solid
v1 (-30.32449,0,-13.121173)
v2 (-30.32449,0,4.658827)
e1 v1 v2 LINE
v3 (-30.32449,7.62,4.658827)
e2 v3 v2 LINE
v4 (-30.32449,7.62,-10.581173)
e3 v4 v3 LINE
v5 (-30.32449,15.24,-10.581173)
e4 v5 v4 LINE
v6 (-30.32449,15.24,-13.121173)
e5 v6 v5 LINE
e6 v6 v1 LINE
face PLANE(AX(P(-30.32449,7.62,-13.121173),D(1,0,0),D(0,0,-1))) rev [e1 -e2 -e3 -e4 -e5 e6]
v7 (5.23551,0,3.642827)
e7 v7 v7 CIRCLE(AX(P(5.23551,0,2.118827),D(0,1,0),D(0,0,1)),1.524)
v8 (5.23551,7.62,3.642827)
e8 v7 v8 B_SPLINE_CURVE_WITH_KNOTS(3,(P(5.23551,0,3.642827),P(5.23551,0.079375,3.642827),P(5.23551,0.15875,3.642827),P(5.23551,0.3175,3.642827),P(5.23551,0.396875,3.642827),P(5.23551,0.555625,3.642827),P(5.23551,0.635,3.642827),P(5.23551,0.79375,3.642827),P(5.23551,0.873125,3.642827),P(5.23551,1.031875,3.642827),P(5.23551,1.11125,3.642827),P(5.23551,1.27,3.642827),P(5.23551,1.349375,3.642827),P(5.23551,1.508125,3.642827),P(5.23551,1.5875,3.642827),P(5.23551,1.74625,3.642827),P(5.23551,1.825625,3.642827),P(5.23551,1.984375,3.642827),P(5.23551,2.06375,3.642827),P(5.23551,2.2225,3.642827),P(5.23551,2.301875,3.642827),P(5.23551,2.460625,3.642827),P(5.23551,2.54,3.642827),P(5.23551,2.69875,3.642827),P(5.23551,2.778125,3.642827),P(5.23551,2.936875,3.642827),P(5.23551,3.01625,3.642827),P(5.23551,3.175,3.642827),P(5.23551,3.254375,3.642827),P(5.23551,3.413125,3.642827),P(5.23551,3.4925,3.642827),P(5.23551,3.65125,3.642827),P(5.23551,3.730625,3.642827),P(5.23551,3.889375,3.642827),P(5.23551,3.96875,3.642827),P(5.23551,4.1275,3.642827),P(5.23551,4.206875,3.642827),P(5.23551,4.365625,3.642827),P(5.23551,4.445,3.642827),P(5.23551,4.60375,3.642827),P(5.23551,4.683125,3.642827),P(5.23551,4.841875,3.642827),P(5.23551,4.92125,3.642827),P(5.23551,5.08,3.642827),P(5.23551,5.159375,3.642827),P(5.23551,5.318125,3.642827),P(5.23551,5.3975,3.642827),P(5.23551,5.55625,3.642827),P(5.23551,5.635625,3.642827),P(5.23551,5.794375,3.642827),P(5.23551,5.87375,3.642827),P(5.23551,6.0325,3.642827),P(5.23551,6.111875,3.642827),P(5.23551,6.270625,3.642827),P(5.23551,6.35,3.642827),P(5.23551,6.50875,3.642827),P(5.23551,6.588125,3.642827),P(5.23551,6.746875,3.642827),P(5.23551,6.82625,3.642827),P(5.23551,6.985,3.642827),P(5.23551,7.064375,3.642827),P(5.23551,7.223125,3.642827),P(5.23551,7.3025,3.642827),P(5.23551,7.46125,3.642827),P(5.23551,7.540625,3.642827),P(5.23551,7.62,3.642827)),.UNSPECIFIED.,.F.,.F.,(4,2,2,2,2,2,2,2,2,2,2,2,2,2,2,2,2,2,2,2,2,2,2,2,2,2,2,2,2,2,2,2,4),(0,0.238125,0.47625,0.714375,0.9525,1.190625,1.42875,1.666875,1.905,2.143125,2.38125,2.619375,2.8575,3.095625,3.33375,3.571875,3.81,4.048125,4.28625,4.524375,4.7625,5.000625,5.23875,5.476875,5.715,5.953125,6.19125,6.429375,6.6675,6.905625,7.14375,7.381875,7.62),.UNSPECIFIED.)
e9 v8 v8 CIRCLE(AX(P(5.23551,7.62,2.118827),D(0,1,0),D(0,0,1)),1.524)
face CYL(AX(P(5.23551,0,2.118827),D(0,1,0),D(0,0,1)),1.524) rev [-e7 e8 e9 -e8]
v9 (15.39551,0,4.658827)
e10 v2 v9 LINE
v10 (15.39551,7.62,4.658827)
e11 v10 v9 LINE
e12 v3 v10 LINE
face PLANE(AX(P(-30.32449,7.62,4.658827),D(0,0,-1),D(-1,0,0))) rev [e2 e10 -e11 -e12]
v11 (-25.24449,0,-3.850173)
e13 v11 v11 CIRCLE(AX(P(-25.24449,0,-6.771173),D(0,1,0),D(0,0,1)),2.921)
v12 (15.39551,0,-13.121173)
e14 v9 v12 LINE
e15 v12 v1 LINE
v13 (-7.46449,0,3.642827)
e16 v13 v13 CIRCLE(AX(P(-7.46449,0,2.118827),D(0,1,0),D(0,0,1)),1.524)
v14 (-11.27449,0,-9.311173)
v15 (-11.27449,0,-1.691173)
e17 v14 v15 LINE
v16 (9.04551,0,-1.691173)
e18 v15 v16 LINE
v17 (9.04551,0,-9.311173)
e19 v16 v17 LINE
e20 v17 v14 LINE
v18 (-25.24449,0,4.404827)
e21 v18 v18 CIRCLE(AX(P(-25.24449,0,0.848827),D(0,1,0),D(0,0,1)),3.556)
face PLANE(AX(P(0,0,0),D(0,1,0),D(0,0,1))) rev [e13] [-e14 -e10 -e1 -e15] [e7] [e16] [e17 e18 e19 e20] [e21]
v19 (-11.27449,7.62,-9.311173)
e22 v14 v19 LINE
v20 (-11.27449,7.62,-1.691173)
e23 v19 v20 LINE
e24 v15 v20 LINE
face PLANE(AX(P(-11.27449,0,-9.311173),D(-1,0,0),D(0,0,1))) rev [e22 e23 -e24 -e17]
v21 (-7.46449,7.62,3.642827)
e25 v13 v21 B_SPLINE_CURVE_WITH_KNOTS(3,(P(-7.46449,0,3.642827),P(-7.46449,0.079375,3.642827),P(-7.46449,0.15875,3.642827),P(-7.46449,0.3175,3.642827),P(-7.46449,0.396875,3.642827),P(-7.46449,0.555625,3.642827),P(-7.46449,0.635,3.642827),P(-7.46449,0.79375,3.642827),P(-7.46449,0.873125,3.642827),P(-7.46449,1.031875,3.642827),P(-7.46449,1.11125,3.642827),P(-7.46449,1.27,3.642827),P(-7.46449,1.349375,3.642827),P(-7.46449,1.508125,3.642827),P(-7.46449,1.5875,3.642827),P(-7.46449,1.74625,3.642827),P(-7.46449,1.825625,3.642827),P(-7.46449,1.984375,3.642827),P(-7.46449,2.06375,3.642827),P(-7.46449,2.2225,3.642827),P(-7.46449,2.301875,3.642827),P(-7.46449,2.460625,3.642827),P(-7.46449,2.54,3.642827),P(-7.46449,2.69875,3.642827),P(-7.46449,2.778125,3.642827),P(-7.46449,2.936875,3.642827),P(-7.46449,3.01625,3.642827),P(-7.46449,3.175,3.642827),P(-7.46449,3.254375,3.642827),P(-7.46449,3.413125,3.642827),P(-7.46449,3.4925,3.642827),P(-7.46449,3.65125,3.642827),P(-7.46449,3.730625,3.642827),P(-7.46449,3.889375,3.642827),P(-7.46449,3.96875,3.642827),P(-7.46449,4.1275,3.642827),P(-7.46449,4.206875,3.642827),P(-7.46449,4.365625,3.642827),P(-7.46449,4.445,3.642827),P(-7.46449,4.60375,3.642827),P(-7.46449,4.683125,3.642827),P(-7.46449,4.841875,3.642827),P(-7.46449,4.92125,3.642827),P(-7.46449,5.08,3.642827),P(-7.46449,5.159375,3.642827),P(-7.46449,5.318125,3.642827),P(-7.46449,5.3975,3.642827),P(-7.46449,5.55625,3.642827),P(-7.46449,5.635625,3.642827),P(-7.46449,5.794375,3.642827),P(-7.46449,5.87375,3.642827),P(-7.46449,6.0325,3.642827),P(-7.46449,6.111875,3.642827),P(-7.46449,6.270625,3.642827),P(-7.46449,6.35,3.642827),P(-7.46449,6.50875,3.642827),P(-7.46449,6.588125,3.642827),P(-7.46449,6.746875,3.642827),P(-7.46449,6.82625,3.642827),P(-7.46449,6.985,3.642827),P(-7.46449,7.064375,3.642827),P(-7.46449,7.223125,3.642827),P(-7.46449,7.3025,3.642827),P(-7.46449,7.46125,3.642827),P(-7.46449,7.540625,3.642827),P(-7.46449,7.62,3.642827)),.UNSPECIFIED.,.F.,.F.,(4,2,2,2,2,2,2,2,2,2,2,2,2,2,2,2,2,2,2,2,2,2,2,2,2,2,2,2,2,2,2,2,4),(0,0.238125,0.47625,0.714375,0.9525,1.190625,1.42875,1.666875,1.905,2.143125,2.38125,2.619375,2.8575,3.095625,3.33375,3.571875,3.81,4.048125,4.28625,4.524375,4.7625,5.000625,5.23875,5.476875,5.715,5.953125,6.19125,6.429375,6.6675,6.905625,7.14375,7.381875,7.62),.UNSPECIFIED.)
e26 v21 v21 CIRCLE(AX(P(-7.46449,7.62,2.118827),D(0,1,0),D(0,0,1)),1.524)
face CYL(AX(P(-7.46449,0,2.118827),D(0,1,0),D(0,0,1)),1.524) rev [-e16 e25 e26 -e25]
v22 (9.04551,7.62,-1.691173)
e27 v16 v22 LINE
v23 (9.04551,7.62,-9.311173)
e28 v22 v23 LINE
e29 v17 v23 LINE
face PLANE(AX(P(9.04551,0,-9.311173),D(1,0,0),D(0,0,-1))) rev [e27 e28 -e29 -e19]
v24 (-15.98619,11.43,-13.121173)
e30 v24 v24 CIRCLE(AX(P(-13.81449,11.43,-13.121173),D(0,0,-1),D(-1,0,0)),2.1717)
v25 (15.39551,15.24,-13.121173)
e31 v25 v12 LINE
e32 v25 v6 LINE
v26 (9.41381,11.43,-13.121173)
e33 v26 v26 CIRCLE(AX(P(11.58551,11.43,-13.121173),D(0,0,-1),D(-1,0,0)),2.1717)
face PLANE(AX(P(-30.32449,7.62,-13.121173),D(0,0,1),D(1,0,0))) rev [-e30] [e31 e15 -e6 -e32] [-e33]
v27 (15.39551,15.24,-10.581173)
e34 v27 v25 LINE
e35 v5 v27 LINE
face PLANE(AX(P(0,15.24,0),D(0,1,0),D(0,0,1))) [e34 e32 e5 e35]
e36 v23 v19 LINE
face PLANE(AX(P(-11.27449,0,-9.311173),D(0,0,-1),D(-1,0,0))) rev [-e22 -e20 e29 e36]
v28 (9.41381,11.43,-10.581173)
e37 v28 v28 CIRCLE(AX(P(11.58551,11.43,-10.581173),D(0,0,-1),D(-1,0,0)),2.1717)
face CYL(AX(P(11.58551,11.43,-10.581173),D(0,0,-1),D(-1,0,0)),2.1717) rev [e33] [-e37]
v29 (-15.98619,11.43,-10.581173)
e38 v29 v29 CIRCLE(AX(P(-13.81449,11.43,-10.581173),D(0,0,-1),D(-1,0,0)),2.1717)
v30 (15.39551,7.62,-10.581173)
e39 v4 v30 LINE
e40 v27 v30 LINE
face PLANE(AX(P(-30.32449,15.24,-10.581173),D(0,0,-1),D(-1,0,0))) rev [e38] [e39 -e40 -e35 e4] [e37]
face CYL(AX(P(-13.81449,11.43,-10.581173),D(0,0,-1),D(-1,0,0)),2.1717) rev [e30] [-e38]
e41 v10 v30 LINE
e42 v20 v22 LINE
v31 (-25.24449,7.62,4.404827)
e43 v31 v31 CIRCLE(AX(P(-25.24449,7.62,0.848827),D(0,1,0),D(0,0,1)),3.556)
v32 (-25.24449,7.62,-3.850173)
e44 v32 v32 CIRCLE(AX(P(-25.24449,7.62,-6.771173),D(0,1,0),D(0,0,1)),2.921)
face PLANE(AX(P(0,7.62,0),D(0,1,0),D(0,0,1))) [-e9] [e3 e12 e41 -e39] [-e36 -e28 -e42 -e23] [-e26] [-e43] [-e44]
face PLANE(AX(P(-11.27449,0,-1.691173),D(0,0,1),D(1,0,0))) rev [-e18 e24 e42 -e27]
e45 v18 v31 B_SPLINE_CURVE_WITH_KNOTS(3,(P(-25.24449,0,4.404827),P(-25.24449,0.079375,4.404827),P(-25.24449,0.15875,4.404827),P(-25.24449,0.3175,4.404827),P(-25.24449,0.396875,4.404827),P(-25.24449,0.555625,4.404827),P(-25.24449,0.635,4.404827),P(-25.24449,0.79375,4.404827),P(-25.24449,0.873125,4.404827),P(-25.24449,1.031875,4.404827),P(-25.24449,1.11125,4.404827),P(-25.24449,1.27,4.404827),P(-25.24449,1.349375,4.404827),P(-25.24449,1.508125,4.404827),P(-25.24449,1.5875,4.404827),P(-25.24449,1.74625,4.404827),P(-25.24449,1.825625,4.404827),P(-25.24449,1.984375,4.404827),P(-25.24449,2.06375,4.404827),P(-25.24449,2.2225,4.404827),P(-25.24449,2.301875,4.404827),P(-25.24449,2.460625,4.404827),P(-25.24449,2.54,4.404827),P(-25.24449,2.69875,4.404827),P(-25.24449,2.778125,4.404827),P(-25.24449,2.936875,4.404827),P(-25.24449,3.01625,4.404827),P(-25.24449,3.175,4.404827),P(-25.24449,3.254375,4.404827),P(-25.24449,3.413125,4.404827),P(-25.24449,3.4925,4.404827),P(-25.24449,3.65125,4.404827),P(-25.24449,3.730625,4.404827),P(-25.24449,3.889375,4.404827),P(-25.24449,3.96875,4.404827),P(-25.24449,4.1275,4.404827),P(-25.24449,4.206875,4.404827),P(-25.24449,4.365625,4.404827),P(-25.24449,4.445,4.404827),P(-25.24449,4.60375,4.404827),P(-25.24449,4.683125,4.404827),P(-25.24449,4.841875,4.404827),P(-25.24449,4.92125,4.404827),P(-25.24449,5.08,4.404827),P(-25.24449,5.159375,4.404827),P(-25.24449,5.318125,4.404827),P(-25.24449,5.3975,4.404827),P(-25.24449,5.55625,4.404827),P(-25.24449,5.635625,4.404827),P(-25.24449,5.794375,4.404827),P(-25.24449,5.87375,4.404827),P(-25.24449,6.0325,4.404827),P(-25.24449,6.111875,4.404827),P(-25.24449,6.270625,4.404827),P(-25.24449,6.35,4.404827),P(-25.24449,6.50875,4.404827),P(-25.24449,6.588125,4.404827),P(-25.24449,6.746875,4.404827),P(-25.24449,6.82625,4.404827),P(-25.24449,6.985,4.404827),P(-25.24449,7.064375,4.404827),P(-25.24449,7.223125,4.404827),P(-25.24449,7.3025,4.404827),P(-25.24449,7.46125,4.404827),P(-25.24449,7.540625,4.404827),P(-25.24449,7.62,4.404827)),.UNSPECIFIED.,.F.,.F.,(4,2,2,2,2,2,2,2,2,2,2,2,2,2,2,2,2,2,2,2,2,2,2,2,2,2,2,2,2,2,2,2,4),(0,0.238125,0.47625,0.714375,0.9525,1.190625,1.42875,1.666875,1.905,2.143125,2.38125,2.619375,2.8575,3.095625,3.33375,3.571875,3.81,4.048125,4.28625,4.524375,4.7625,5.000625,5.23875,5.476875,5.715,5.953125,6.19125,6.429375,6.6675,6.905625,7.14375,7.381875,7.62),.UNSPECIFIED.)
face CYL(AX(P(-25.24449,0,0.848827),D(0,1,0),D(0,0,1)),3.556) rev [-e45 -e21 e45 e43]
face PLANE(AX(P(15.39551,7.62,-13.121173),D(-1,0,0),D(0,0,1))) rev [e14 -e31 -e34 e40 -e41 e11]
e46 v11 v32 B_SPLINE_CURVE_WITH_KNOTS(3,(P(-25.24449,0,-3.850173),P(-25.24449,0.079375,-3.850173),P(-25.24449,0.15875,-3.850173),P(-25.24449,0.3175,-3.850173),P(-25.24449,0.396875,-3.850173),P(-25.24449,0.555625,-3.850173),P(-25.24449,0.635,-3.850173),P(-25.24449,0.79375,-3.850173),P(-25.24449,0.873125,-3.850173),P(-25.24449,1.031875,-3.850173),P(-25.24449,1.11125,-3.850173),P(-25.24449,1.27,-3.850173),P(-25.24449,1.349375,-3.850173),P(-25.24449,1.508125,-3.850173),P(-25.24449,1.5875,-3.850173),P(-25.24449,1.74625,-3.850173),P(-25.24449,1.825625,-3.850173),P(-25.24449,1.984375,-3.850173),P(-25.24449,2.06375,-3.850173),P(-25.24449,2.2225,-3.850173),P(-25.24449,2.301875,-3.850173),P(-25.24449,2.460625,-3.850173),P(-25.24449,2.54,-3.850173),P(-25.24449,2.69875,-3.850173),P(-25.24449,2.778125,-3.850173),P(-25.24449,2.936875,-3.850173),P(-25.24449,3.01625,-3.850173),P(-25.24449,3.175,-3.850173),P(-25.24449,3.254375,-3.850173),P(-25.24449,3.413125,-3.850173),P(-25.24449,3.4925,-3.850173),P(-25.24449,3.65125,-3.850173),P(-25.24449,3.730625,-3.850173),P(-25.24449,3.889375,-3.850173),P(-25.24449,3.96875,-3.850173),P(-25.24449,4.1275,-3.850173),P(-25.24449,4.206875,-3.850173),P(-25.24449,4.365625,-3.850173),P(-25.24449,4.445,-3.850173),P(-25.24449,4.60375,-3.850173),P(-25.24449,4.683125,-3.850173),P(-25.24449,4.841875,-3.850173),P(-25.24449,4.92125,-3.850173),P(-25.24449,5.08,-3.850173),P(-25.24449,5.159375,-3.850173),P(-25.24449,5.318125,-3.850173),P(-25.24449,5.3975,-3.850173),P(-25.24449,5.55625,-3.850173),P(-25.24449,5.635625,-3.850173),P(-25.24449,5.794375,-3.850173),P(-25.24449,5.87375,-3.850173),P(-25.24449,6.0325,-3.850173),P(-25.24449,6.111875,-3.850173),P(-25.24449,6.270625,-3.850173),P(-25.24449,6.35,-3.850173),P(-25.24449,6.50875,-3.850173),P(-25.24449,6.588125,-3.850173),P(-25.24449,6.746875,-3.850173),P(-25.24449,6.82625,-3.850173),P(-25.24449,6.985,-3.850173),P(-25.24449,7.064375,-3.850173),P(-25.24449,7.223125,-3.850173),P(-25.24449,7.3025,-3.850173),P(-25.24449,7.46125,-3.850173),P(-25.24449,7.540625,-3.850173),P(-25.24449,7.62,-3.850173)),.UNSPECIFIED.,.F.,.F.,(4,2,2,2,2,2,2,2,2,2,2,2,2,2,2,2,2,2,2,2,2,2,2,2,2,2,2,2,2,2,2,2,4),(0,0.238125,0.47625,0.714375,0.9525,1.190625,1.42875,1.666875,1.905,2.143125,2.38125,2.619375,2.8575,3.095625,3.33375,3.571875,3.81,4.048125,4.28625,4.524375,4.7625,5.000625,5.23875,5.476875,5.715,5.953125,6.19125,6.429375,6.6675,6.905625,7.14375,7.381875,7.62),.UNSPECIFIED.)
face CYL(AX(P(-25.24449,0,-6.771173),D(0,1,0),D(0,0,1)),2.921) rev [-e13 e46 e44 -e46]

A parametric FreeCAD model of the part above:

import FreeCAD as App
import Part
import Sketcher
from FreeCAD import Vector
Q = App.Units.Quantity

doc = App.newDocument("Part")
params = doc.addObject("Spreadsheet::Sheet", "Params")
for row, (alias, value) in enumerate([
    ("sketch1_width", "1.8 in"),
    ("sketch1_height", "0.7 in"),
    ("pad1_length", "0.3 in"),
    ("sketch2_width", "1.8 in"),
    ("sketch2_height", "0.1 in"),
    ("pad2_length", "0.3 in"),
    ("sketch3_diameter", "0.171 in"),
    ("pocket1_length", "0.1 in"),
    ("sketch4_diameter", "0.28 in"),
    ("sketch4_diameter2", "0.23 in"),
    ("sketch4_diameter3", "0.12 in"),
    ("sketch4_width", "0.8 in"),
    ("sketch4_height", "0.3 in"),
    ("pocket2_length", "0.3 in"),
], start=1):
    params.set(f"A{row}", alias)
    params.set(f"B{row}", "=" + value)
    params.setAlias(f"B{row}", alias)

body = doc.addObject("PartDesign::Body", "Body")

# Sketch on XZ plane
sketch1 = body.newObject("Sketcher::SketchObject", "Sketch")
sketch1.AttachmentSupport = (doc.getObject("XZ_Plane"), [""])
sketch1.MapMode = "FlatFace"
sketch1.addGeometry([
    Part.LineSegment(Vector(-30, -13, 0), Vector(-30, 5, 0)),
    Part.LineSegment(Vector(-30, 5, 0), Vector(15, 5, 0)),
    Part.LineSegment(Vector(15, 5, 0), Vector(15, -13, 0)),
    Part.LineSegment(Vector(15, -13, 0), Vector(-30, -13, 0)),
], False)
sketch1.addConstraint([
    Sketcher.Constraint("Coincident", 0, 2, 1, 1),
    Sketcher.Constraint("Coincident", 1, 2, 2, 1),
    Sketcher.Constraint("Coincident", 2, 2, 3, 1),
    Sketcher.Constraint("Coincident", 3, 2, 0, 1),
    Sketcher.Constraint("Vertical", 0),
    Sketcher.Constraint("Horizontal", 1),
    Sketcher.Constraint("Vertical", 2),
    Sketcher.Constraint("Horizontal", 3),
    Sketcher.Constraint("DistanceX", 1, 1, 1, 2, Q("1.8 in")),
    Sketcher.Constraint("DistanceY", 0, 1, 0, 2, Q("0.7 in")),
    Sketcher.Constraint("DistanceX", 0, 2, -1, 1, 30.32449),
    Sketcher.Constraint("DistanceY", -1, 1, 0, 2, 4.658827),
])
sketch1.setExpression("Constraints[8]", "Params.sketch1_width")
sketch1.setExpression("Constraints[9]", "Params.sketch1_height")
pad1 = body.newObject("PartDesign::Pad", "Pad")
pad1.Profile = sketch1
pad1.setExpression("Length", "Params.pad1_length")
pad1.Reversed = True

# Sketch on XZ plane
sketch2 = body.newObject("Sketcher::SketchObject", "Sketch001")
sketch2.AttachmentSupport = (doc.getObject("XZ_Plane"), [""])
sketch2.MapMode = "FlatFace"
sketch2.AttachmentOffset = App.Placement(Vector(0, 0, -0.3 * 25.4), App.Rotation())
sketch2.addGeometry([
    Part.LineSegment(Vector(-30.3, -13.1, 0), Vector(-30.3, -10.6, 0)),
    Part.LineSegment(Vector(-30.3, -10.6, 0), Vector(15.4, -10.6, 0)),
    Part.LineSegment(Vector(15.4, -10.6, 0), Vector(15.4, -13.1, 0)),
    Part.LineSegment(Vector(15.4, -13.1, 0), Vector(-30.3, -13.1, 0)),
], False)
sketch2.addConstraint([
    Sketcher.Constraint("Coincident", 0, 2, 1, 1),
    Sketcher.Constraint("Coincident", 1, 2, 2, 1),
    Sketcher.Constraint("Coincident", 2, 2, 3, 1),
    Sketcher.Constraint("Coincident", 3, 2, 0, 1),
    Sketcher.Constraint("Vertical", 0),
    Sketcher.Constraint("Horizontal", 1),
    Sketcher.Constraint("Vertical", 2),
    Sketcher.Constraint("Horizontal", 3),
    Sketcher.Constraint("DistanceX", 1, 1, 1, 2, Q("1.8 in")),
    Sketcher.Constraint("DistanceY", 0, 1, 0, 2, Q("0.1 in")),
    Sketcher.Constraint("DistanceX", 0, 2, -1, 1, 30.32449),
    Sketcher.Constraint("DistanceY", 0, 2, -1, 1, 10.581173),
])
sketch2.setExpression("Constraints[8]", "Params.sketch2_width")
sketch2.setExpression("Constraints[9]", "Params.sketch2_height")
pad2 = body.newObject("PartDesign::Pad", "Pad001")
pad2.Profile = sketch2
pad2.setExpression("Length", "Params.pad2_length")
pad2.Reversed = True

# Sketch on XY plane
sketch3 = body.newObject("Sketcher::SketchObject", "Sketch002")
sketch3.AttachmentSupport = (doc.getObject("XY_Plane"), [""])
sketch3.MapMode = "FlatFace"
sketch3.AttachmentOffset = App.Placement(Vector(0, 0, -13.121173), App.Rotation())
sketch3.addGeometry([
    Part.Circle(Vector(-13.8, 11.4, 0), Vector(0, 0, 1), 2.2),
    Part.Circle(Vector(11.6, 11.4, 0), Vector(0, 0, 1), 2.2),
], False)
sketch3.addConstraint([
    Sketcher.Constraint("Equal", 0, 1),
    Sketcher.Constraint("Horizontal", 0, 3, 1, 3),
    Sketcher.Constraint("Diameter", 0, Q("0.171 in")),
    Sketcher.Constraint("DistanceX", 0, 3, 1, 3, Q("1 in")),
    Sketcher.Constraint("DistanceY", -1, 1, 0, 3, Q("0.45 in")),
    Sketcher.Constraint("DistanceX", 0, 3, -1, 1, 13.81449),
])
sketch3.setExpression("Constraints[2]", "Params.sketch3_diameter")
pocket1 = body.newObject("PartDesign::Pocket", "Pocket")
pocket1.Profile = sketch3
pocket1.setExpression("Length", "Params.pocket1_length")
pocket1.Reversed = True

# Sketch on XZ plane
sketch4 = body.newObject("Sketcher::SketchObject", "Sketch003")
sketch4.AttachmentSupport = (doc.getObject("XZ_Plane"), [""])
sketch4.MapMode = "FlatFace"
sketch4.AttachmentOffset = App.Placement(Vector(0, 0, -0.3 * 25.4), App.Rotation())
sketch4.addGeometry([
    Part.Circle(Vector(-25.2, 0.8, 0), Vector(0, 0, 1), 3.6),  # 0
    Part.Circle(Vector(-25.2, -6.8, 0), Vector(0, 0, 1), 2.9),  # 1
    Part.Circle(Vector(-7.5, 2.1, 0), Vector(0, 0, 1), 1.5),  # 2
    Part.Circle(Vector(5.2, 2.1, 0), Vector(0, 0, 1), 1.5),  # 3
    Part.LineSegment(Vector(-11.3, -9.3, 0), Vector(-11.3, -1.7, 0)),  # 4
    Part.LineSegment(Vector(-11.3, -1.7, 0), Vector(9, -1.7, 0)),  # 5
    Part.LineSegment(Vector(9, -1.7, 0), Vector(9, -9.3, 0)),  # 6
    Part.LineSegment(Vector(9, -9.3, 0), Vector(-11.3, -9.3, 0)),  # 7
], False)
sketch4.addConstraint([
    Sketcher.Constraint("Coincident", 4, 2, 5, 1),
    Sketcher.Constraint("Coincident", 5, 2, 6, 1),
    Sketcher.Constraint("Coincident", 6, 2, 7, 1),
    Sketcher.Constraint("Coincident", 7, 2, 4, 1),
    Sketcher.Constraint("Vertical", 4),
    Sketcher.Constraint("Horizontal", 5),
    Sketcher.Constraint("Vertical", 6),
    Sketcher.Constraint("Horizontal", 7),
    Sketcher.Constraint("Equal", 2, 3),
    Sketcher.Constraint("Horizontal", 2, 3, 3, 3),
    Sketcher.Constraint("Vertical", 0, 3, 1, 3),
    Sketcher.Constraint("Diameter", 0, Q("0.28 in")),
    Sketcher.Constraint("Diameter", 1, Q("0.23 in")),
    Sketcher.Constraint("Diameter", 2, Q("0.12 in")),
    Sketcher.Constraint("DistanceX", 5, 1, 5, 2, Q("0.8 in")),
    Sketcher.Constraint("DistanceY", 4, 1, 4, 2, Q("0.3 in")),
    Sketcher.Constraint("DistanceY", 1, 3, 0, 3, Q("0.3 in")),
    Sketcher.Constraint("DistanceX", 0, 3, 2, 3, Q("0.7 in")),
    Sketcher.Constraint("DistanceX", 2, 3, 3, 3, Q("0.5 in")),
    Sketcher.Constraint("DistanceY", 4, 2, 0, 3, Q("0.1 in")),
    Sketcher.Constraint("DistanceY", 0, 3, 2, 3, Q("0.05 in")),
    Sketcher.Constraint("DistanceX", 4, 2, 2, 3, Q("0.15 in")),
    Sketcher.Constraint("DistanceX", 0, 3, -1, 1, 25.24449),
    Sketcher.Constraint("DistanceY", -1, 1, 0, 3, 0.848827),
])
sketch4.setExpression("Constraints[11]", "Params.sketch4_diameter")
sketch4.setExpression("Constraints[12]", "Params.sketch4_diameter2")
sketch4.setExpression("Constraints[13]", "Params.sketch4_diameter3")
sketch4.setExpression("Constraints[14]", "Params.sketch4_width")
sketch4.setExpression("Constraints[15]", "Params.sketch4_height")
pocket2 = body.newObject("PartDesign::Pocket", "Pocket001")
pocket2.Profile = sketch4
pocket2.setExpression("Length", "Params.pocket2_length")
pocket2.Reversed = True

doc.recompute()
